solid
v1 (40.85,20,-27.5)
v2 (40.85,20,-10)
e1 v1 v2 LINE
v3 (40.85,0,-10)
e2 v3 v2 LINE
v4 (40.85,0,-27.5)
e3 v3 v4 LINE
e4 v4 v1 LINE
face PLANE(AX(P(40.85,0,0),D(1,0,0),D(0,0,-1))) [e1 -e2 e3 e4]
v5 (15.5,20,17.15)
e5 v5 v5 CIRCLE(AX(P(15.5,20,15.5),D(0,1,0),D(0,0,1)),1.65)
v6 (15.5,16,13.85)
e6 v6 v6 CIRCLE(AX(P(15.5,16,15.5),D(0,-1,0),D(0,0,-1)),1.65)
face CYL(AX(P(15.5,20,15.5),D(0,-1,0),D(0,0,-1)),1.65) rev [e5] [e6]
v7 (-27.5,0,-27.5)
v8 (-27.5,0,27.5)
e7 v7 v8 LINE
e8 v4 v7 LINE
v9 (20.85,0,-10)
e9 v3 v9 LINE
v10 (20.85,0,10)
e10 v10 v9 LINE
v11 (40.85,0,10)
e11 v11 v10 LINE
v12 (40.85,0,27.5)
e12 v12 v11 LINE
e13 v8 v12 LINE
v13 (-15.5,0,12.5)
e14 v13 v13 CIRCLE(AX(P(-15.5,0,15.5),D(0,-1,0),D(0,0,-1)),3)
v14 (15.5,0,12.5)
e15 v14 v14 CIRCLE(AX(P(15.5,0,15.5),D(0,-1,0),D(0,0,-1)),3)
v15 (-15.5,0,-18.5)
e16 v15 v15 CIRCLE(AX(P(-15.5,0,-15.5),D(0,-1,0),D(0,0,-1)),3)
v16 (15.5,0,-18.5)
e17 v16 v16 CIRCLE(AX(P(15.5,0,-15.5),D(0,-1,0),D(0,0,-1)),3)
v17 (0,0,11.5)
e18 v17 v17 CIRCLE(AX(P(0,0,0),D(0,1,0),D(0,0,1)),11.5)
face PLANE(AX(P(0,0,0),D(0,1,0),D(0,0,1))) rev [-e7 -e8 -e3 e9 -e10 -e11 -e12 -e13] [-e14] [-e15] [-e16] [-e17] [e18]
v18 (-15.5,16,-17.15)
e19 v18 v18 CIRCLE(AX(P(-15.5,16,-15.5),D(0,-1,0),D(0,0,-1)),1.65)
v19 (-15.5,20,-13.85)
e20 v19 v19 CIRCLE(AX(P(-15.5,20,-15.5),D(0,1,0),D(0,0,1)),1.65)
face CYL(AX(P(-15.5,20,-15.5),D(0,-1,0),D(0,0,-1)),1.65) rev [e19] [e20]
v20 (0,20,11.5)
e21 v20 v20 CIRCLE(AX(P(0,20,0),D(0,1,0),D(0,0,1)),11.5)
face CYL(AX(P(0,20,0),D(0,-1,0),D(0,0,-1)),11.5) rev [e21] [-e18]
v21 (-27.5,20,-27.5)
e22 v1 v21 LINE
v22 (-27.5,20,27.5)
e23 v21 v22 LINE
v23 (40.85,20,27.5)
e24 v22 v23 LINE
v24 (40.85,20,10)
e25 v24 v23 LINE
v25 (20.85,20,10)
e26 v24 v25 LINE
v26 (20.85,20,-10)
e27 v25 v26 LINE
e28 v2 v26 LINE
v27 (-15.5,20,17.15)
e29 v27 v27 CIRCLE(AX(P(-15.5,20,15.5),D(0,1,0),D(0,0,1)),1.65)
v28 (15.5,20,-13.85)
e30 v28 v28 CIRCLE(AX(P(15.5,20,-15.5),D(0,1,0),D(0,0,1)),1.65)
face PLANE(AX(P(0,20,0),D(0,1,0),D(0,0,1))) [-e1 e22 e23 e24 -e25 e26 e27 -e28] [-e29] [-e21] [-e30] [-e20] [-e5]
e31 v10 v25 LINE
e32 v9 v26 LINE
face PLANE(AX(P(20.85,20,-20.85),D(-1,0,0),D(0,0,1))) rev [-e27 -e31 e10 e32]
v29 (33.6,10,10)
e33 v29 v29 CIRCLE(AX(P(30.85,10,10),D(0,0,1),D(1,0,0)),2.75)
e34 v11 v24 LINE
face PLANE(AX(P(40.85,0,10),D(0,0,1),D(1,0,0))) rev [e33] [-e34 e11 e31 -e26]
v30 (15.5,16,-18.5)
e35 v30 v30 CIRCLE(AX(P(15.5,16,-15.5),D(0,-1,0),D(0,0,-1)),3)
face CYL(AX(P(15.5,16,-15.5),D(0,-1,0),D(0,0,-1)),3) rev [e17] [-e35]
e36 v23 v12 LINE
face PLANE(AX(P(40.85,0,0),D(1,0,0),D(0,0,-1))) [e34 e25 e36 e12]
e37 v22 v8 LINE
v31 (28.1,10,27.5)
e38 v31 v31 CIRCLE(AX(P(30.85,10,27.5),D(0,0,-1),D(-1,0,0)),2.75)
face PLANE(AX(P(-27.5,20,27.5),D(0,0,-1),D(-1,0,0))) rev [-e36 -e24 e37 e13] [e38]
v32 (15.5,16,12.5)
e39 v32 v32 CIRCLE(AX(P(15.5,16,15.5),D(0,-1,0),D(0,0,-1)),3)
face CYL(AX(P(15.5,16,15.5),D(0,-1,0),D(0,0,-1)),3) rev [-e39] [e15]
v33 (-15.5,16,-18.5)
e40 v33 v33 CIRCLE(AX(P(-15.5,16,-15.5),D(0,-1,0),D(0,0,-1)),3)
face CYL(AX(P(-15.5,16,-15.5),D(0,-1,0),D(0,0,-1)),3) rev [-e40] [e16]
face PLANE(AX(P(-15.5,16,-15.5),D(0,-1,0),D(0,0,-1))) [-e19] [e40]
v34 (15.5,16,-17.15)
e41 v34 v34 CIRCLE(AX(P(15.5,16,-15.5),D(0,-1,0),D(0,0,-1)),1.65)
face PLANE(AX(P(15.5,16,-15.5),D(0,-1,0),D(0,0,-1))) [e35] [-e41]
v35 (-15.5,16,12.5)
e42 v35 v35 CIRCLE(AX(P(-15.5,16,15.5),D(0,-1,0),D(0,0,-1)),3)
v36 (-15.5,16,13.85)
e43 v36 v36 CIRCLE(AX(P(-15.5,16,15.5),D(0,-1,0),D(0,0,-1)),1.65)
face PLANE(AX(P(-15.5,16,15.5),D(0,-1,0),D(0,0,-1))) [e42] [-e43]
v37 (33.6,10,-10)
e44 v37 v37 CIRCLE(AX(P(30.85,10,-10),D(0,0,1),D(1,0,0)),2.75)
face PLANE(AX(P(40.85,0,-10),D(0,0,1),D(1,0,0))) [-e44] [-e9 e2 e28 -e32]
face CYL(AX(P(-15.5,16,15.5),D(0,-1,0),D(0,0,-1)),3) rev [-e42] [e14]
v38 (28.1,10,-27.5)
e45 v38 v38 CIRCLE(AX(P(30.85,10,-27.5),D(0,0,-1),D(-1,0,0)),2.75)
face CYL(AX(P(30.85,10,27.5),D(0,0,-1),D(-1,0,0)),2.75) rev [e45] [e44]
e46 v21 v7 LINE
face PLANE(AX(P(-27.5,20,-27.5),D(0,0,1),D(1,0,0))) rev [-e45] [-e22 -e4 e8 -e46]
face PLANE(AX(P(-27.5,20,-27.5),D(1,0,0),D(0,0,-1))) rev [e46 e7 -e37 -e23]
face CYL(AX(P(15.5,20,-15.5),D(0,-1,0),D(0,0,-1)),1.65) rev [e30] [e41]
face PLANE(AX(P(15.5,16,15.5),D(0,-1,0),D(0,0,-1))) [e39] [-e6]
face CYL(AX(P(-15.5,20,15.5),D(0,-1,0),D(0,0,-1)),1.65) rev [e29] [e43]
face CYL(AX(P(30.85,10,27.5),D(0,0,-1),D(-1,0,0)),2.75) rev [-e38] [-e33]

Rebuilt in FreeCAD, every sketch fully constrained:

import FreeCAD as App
import Part
import Sketcher

V = App.Vector
Q = App.Units.Quantity

doc = App.newDocument("Part")
body = doc.addObject("PartDesign::Body", "Body")

sketch1 = body.newObject("Sketcher::SketchObject", "Sketch")
sketch1.AttachmentSupport = (doc.getObject("XZ_Plane"), [""])
sketch1.MapMode = "FlatFace"
sketch1.addGeometry([
    Part.LineSegment(V(20.85, -27.5, 0), V(-27.5, -27.5, 0)),
    Part.LineSegment(V(-27.5, -27.5, 0), V(-27.5, 27.5, 0)),
    Part.LineSegment(V(-27.5, 27.5, 0), V(20.85, 27.5, 0)),
    Part.LineSegment(V(20.85, 27.5, 0), V(20.85, -27.5, 0)),
    Part.Circle(V(-15.5, 15.5, 0), V(0, 0, 1), 1.65),
    Part.Circle(V(15.5, 15.5, 0), V(0, 0, 1), 1.65),
    Part.Circle(V(0, 0, 0), V(0, 0, 1), 11.5),
    Part.Circle(V(-15.5, -15.5, 0), V(0, 0, 1), 1.65),
    Part.Circle(V(15.5, -15.5, 0), V(0, 0, 1), 1.65),
], False)
sketch1.addConstraint([
    Sketcher.Constraint("Coincident", 0, 2, 1, 1),
    Sketcher.Constraint("Coincident", 1, 2, 2, 1),
    Sketcher.Constraint("Coincident", 2, 2, 3, 1),
    Sketcher.Constraint("Coincident", 3, 2, 0, 1),
    Sketcher.Constraint("Horizontal", 0),
    Sketcher.Constraint("Vertical", 1),
    Sketcher.Constraint("Horizontal", 2),
    Sketcher.Constraint("Vertical", 3),
    Sketcher.Constraint("Coincident", 6, 3, -1, 1),
    Sketcher.Constraint("Equal", 4, 5),
    Sketcher.Constraint("Equal", 5, 7),
    Sketcher.Constraint("Equal", 7, 8),
    Sketcher.Constraint("Symmetric", 5, 3, 7, 3, -1, 1),
    Sketcher.Constraint("Symmetric", 4, 3, 8, 3, -1, 1),
    Sketcher.Constraint("Symmetric", 4, 3, 5, 3, -2),
    Sketcher.Constraint("Diameter", 6, Q("23 mm")),
    Sketcher.Constraint("Diameter", 4, Q("3.3 mm")),
    Sketcher.Constraint("DistanceY", 1, 1, 1, 2, Q("55 mm")),
    Sketcher.Constraint("DistanceX", 4, 3, 5, 3, Q("31 mm")),
    Sketcher.Constraint("DistanceY", 7, 3, 4, 3, Q("31 mm")),
    Sketcher.Constraint("DistanceX", 0, 2, 7, 3, Q("12 mm")),
    Sketcher.Constraint("DistanceY", 0, 2, 7, 3, Q("12 mm")),
    Sketcher.Constraint("DistanceX", 0, 2, 0, 1, Q("48.35 mm")),
])
pad1 = body.newObject("PartDesign::Pad", "Pad")
pad1.Profile = sketch1
pad1.Length = 20
pad1.Reversed = True

sketch2 = body.newObject("Sketcher::SketchObject", "Sketch001")
sketch2.AttachmentSupport = (doc.getObject("YZ_Plane"), [""])
sketch2.MapMode = "FlatFace"
sketch2.AttachmentOffset = App.Placement(V(0, 0, 20.85), App.Rotation())
sketch2.addGeometry([
    Part.LineSegment(V(20, -10, 0), V(0, -10, 0)),
    Part.LineSegment(V(0, -10, 0), V(0, -27.5, 0)),
    Part.LineSegment(V(0, -27.5, 0), V(20, -27.5, 0)),
    Part.LineSegment(V(20, -27.5, 0), V(20, -10, 0)),
    Part.LineSegment(V(20, 27.5, 0), V(0, 27.5, 0)),
    Part.LineSegment(V(0, 27.5, 0), V(0, 10, 0)),
    Part.LineSegment(V(0, 10, 0), V(20, 10, 0)),
    Part.LineSegment(V(20, 10, 0), V(20, 27.5, 0)),
], False)
sketch2.addConstraint([
    Sketcher.Constraint("Coincident", 0, 2, 1, 1),
    Sketcher.Constraint("Coincident", 1, 2, 2, 1),
    Sketcher.Constraint("Coincident", 2, 2, 3, 1),
    Sketcher.Constraint("Coincident", 3, 2, 0, 1),
    Sketcher.Constraint("Coincident", 4, 2, 5, 1),
    Sketcher.Constraint("Coincident", 5, 2, 6, 1),
    Sketcher.Constraint("Coincident", 6, 2, 7, 1),
    Sketcher.Constraint("Coincident", 7, 2, 4, 1),
    Sketcher.Constraint("Horizontal", 0),
    Sketcher.Constraint("Vertical", 1),
    Sketcher.Constraint("Horizontal", 2),
    Sketcher.Constraint("Vertical", 3),
    Sketcher.Constraint("Horizontal", 4),
    Sketcher.Constraint("Vertical", 5),
    Sketcher.Constraint("Horizontal", 6),
    Sketcher.Constraint("Vertical", 7),
    Sketcher.Constraint("Symmetric", 1, 2, 4, 2, -1, 1),
    Sketcher.Constraint("Symmetric", 0, 2, 5, 2, -1),
    Sketcher.Constraint("Vertical", 3, 2, 6, 2),
    Sketcher.Constraint("DistanceX", 0, 2, 0, 1, Q("20 mm")),
    Sketcher.Constraint("DistanceY", 1, 2, 1, 1, Q("17.5 mm")),
    Sketcher.Constraint("DistanceY", 0, 2, -1, 1, Q("10 mm")),
])
pad2 = body.newObject("PartDesign::Pad", "Pad001")
pad2.Profile = sketch2
pad2.Length = 20

sketch3 = body.newObject("Sketcher::SketchObject", "Sketch002")
sketch3.AttachmentSupport = (doc.getObject("XZ_Plane"), [""])
sketch3.MapMode = "FlatFace"
sketch3.addGeometry([
    Part.Circle(V(-15.5, 15.5, 0), V(0, 0, 1), 3),
    Part.Circle(V(15.5, 15.5, 0), V(0, 0, 1), 3),
    Part.Circle(V(15.5, -15.5, 0), V(0, 0, 1), 3),
    Part.Circle(V(-15.5, -15.5, 0), V(0, 0, 1), 3),
], False)
sketch3.addConstraint([
    Sketcher.Constraint("Equal", 0, 1),
    Sketcher.Constraint("Equal", 1, 2),
    Sketcher.Constraint("Equal", 2, 3),
    Sketcher.Constraint("Symmetric", 0, 3, 2, 3, -1, 1),
    Sketcher.Constraint("Symmetric", 1, 3, 3, 3, -1, 1),
    Sketcher.Constraint("Symmetric", 0, 3, 1, 3, -2),
    Sketcher.Constraint("Diameter", 0, Q("6 mm")),
    Sketcher.Constraint("DistanceX", 0, 3, 1, 3, Q("31 mm")),
    Sketcher.Constraint("DistanceY", 2, 3, 1, 3, Q("31 mm")),
])
pocket1 = body.newObject("PartDesign::Pocket", "Pocket")
pocket1.Profile = sketch3
pocket1.Length = 16

sketch4 = body.newObject("Sketcher::SketchObject", "Sketch003")
sketch4.AttachmentSupport = (doc.getObject("XY_Plane"), [""])
sketch4.MapMode = "FlatFace"
sketch4.AttachmentOffset = App.Placement(V(0, 0, -27.5), App.Rotation())
sketch4.addGeometry(Part.Circle(V(30.85, 10, 0), V(0, 0, 1), 2.75), False)
sketch4.addConstraint([
    Sketcher.Constraint("Diameter", 0, Q("5.5 mm")),
    Sketcher.Constraint("DistanceY", -1, 1, 0, 3, Q("10 mm")),
    Sketcher.Constraint("DistanceX", -1, 1, 0, 3, Q("30.85 mm")),
])
pocket2 = body.newObject("PartDesign::Pocket", "Pocket001")
pocket2.Profile = sketch4
pocket2.Type = "ThroughAll"
pocket2.Reversed = True

doc.recompute()
